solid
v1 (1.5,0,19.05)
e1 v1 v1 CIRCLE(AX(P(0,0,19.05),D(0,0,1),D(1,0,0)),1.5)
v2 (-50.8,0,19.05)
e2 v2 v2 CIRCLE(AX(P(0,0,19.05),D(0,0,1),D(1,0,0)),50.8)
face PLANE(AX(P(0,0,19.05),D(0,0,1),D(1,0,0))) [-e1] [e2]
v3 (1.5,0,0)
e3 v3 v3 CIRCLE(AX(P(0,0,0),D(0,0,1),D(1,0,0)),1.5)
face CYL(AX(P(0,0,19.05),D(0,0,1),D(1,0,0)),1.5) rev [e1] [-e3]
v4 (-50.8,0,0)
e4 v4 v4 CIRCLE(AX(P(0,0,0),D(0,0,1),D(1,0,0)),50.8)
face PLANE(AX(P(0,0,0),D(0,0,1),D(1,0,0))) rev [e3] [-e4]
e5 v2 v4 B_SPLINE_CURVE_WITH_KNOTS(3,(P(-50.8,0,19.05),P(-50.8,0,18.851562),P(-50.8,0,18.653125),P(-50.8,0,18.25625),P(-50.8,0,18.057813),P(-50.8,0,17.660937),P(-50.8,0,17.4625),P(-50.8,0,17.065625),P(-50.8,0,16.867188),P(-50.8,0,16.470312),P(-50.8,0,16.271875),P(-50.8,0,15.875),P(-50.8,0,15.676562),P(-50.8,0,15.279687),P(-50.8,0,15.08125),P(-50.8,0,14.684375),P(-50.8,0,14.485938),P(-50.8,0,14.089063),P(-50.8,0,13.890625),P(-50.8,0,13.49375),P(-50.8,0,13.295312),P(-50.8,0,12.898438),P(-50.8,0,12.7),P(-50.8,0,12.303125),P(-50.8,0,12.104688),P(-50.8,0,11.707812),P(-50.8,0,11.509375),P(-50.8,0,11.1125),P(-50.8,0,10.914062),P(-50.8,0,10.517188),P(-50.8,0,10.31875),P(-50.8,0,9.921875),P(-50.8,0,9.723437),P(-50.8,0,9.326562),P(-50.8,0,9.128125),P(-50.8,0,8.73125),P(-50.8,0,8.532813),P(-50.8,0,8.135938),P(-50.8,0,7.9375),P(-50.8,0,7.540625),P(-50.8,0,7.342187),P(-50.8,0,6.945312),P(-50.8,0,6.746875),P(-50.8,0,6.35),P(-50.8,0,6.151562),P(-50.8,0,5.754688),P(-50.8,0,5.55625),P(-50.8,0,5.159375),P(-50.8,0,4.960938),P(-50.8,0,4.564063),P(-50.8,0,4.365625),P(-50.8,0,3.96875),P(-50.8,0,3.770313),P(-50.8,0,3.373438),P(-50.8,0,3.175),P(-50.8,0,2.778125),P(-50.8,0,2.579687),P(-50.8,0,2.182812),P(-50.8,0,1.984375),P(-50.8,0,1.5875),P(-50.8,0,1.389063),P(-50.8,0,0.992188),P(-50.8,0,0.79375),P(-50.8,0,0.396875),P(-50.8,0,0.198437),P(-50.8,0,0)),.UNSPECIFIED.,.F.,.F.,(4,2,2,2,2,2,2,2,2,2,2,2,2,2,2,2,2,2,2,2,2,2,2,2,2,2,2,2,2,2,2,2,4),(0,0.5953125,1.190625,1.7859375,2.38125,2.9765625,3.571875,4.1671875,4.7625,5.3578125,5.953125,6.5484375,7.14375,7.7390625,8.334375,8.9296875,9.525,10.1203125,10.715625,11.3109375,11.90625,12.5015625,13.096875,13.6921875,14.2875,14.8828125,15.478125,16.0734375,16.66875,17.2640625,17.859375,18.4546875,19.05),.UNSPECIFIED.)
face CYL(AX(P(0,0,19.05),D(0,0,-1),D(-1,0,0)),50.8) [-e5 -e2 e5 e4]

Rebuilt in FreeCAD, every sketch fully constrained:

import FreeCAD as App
import Part
import Sketcher
Q = App.Units.Quantity

doc = App.newDocument("Part")
body = doc.addObject("PartDesign::Body", "Body")

sketch1 = body.newObject("Sketcher::SketchObject", "Sketch")
sketch1.AttachmentSupport = (doc.getObject("XY_Plane"), [""])
sketch1.MapMode = "FlatFace"
sketch1.addGeometry(Part.Circle(App.Vector(0, 0, 0), App.Vector(0, 0, 1), 51), False)
sketch1.addConstraint([
    Sketcher.Constraint("Coincident", 0, 3, -1, 1),
    Sketcher.Constraint("Diameter", 0, Q("4 in")),
])
pad1 = body.newObject("PartDesign::Pad", "Pad")
pad1.Profile = sketch1
pad1.Length = Q("0.75 in")

sketch2 = body.newObject("Sketcher::SketchObject", "Sketch001")
sketch2.AttachmentSupport = (doc.getObject("XY_Plane"), [""])
sketch2.MapMode = "FlatFace"
sketch2.AttachmentOffset = App.Placement(App.Vector(0, 0, 0.75 * 25.4), App.Rotation())
sketch2.addGeometry(Part.Circle(App.Vector(0, 0, 0), App.Vector(0, 0, 1), 1.5), False)
sketch2.addConstraint([
    Sketcher.Constraint("Coincident", 0, 3, -1, 1),
    Sketcher.Constraint("Diameter", 0, Q("3 mm")),
])
doc.recompute()
hole = body.newObject("PartDesign::Hole", "Hole")
hole.Profile = sketch2
hole.ThreadType = "None"
hole.Diameter = 3
hole.DepthType = "ThroughAll"

doc.recompute()
